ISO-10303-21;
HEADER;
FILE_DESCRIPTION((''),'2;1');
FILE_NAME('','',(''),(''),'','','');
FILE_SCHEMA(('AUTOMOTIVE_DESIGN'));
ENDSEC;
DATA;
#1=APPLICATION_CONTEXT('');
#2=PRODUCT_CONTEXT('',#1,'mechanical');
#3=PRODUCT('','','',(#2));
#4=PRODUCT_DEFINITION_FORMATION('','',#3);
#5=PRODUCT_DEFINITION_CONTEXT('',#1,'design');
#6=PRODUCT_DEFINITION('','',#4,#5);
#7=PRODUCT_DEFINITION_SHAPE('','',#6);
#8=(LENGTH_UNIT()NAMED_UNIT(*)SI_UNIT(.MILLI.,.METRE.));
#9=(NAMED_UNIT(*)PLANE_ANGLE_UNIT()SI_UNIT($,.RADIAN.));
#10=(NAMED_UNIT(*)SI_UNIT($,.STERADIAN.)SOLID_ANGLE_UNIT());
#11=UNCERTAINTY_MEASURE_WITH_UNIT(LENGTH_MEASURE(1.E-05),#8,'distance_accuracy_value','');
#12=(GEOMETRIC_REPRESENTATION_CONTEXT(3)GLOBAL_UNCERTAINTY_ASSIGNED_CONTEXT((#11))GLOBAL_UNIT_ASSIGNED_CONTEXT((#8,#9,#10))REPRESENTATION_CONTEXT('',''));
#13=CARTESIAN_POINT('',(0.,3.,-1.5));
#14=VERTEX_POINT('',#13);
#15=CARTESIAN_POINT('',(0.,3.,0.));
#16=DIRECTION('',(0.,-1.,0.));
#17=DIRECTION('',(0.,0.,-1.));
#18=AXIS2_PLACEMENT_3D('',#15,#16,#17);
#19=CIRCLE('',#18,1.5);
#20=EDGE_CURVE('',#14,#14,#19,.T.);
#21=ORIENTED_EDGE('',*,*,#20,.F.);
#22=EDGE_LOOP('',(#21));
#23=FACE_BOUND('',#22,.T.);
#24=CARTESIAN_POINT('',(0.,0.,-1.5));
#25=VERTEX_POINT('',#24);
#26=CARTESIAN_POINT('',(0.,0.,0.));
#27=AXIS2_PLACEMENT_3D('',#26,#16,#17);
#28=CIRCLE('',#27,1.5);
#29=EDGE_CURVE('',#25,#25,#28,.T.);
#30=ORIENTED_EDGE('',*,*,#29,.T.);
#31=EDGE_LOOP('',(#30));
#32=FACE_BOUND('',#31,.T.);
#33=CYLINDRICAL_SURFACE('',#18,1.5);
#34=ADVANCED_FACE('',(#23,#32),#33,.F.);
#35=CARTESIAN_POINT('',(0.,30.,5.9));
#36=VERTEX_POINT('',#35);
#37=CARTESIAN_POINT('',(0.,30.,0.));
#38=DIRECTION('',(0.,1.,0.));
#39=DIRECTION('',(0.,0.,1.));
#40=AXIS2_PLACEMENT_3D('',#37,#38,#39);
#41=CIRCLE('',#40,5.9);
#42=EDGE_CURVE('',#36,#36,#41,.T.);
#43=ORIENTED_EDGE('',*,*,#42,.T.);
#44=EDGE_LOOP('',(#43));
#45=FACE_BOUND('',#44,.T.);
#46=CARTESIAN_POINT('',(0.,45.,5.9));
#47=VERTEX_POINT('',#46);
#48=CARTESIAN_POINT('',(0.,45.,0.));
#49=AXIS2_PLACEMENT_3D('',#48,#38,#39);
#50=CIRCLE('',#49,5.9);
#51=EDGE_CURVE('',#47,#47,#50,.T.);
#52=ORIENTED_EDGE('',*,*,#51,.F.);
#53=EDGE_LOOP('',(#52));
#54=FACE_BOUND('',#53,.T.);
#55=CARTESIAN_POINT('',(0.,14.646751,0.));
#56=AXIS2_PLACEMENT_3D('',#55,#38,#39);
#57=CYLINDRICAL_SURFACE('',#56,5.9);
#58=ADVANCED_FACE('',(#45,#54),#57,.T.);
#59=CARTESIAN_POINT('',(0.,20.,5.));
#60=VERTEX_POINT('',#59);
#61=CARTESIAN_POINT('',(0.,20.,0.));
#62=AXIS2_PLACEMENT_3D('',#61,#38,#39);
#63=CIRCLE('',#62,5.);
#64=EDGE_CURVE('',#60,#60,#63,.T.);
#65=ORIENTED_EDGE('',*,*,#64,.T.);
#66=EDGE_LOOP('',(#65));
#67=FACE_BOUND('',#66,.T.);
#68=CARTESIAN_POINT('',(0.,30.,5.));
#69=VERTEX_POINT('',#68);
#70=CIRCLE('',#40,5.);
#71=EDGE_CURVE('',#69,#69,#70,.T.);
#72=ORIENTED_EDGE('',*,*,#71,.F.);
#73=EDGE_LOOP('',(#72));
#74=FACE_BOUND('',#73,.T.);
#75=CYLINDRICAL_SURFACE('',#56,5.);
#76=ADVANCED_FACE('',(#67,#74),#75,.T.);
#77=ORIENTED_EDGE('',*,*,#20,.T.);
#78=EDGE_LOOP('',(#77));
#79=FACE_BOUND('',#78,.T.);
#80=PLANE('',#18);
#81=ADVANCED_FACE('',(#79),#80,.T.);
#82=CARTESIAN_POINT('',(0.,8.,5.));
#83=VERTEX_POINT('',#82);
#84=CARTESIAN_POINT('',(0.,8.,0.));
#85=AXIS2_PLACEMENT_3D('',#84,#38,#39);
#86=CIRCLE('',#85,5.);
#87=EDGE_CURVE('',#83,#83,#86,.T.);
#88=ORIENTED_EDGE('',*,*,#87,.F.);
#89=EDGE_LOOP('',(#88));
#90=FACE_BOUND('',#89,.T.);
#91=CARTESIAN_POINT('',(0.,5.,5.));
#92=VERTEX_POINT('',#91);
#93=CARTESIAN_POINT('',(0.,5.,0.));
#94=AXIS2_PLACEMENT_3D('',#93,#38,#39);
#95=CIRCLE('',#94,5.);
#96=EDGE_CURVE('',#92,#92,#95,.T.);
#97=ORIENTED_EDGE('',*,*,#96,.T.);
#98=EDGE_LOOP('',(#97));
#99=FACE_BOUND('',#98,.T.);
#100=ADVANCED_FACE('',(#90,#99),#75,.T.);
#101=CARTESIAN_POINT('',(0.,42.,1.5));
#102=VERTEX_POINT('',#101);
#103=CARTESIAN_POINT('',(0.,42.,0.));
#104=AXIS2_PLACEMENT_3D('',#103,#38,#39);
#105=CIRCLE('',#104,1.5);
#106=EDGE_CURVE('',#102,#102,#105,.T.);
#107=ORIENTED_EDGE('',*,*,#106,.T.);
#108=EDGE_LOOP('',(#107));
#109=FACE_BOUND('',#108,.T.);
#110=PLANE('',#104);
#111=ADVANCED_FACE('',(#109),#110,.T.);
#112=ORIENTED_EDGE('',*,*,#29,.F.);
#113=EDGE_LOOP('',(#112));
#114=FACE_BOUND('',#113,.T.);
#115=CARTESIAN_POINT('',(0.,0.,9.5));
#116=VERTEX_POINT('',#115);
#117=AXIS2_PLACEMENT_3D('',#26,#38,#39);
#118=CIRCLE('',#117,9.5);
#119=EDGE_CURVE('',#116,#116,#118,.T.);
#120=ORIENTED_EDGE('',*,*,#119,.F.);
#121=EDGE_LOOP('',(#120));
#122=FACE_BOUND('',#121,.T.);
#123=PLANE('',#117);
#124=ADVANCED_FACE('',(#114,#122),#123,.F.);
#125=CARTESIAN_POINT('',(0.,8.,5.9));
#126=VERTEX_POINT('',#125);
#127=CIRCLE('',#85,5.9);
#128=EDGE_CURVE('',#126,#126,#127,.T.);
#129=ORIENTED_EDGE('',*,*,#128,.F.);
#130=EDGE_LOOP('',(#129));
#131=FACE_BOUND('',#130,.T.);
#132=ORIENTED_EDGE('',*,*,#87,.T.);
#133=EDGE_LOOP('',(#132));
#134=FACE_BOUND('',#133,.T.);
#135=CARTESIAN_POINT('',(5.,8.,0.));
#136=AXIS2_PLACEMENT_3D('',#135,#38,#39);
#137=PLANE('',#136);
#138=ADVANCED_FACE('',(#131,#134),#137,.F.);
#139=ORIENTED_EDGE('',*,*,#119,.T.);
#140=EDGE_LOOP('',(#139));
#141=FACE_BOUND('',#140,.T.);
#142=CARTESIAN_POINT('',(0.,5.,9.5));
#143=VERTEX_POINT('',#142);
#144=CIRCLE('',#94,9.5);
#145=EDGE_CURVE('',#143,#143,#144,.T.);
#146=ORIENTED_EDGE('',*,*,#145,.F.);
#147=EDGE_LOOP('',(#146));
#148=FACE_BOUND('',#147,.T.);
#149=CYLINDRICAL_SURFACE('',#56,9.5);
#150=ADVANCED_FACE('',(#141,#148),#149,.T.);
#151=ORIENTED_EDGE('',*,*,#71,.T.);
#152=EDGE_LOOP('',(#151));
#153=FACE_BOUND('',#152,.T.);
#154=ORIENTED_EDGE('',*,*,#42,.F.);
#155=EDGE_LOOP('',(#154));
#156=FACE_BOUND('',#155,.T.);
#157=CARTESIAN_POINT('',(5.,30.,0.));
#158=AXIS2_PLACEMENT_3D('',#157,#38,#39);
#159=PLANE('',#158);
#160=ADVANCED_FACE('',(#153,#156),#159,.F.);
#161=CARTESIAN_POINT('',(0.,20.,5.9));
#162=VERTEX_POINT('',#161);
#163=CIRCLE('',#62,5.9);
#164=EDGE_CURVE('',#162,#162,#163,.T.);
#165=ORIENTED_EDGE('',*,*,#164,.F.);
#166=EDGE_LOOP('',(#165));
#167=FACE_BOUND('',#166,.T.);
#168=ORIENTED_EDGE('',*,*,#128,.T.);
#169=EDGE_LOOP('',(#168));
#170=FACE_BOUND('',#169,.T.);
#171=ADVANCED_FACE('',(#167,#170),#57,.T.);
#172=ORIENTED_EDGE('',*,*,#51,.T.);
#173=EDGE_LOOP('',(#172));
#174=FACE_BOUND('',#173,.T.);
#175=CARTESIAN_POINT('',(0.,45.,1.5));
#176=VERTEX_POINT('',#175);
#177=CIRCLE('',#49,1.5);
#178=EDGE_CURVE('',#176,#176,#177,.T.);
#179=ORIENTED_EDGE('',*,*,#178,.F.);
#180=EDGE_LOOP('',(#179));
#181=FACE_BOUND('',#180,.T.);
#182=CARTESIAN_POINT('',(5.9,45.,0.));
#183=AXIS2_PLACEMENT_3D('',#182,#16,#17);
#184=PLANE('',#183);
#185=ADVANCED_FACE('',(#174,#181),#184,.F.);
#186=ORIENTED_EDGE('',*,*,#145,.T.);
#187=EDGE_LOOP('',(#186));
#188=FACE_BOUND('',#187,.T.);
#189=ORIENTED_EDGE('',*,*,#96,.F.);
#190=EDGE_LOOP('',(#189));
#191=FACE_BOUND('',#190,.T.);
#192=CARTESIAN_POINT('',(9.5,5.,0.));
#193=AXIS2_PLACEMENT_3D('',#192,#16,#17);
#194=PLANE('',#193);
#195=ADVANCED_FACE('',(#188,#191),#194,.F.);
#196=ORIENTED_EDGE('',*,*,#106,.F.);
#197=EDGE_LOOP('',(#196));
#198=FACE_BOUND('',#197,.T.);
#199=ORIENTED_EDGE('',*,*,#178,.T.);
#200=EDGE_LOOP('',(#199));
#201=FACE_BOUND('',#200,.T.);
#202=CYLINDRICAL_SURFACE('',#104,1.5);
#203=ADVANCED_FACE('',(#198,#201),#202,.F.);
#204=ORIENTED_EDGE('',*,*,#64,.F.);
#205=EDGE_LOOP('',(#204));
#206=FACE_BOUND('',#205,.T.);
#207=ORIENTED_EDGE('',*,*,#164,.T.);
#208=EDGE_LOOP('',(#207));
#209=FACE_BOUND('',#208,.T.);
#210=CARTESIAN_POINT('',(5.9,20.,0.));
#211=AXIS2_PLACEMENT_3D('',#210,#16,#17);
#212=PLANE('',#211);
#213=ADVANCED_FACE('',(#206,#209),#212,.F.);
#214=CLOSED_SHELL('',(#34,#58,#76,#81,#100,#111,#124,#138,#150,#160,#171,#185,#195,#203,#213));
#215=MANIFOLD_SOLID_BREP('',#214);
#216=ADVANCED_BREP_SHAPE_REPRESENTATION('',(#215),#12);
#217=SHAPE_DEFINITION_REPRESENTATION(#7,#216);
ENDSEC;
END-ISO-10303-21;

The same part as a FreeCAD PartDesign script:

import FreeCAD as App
import Part
import Sketcher

V = App.Vector

doc = App.newDocument("Part")
params = doc.addObject("Spreadsheet::Sheet", "Params")
for row, (alias, value) in enumerate([
    ("sketch1_height", "5 mm"),
    ("sketch1_height2", "3 mm"),
    ("sketch1_height3", "12 mm"),
    ("sketch1_height4", "10 mm"),
    ("sketch1_height5", "15 mm"),
    ("revolution_angle", "360 deg"),
    ("sketch2_diameter", "3 mm"),
    ("pocket1_length", "3 mm"),
    ("sketch3_diameter", "3 mm"),
    ("pocket2_length", "3 mm"),
], start=1):
    params.set(f"A{row}", alias)
    params.set(f"B{row}", "=" + value)
    params.setAlias(f"B{row}", alias)

body = doc.addObject("PartDesign::Body", "Body")

# Sketch on XY plane
sketch1 = doc.addObject("Sketcher::SketchObject", "Sketch")
body.addObject(sketch1)
sketch1.AttachmentSupport = (doc.XY_Plane, [""])
sketch1.MapMode = "FlatFace"
sketch1.addGeometry([
    Part.LineSegment(V(0, 0, 0), V(9.5, 0, 0)),  # 0
    Part.LineSegment(V(9.5, 0, 0), V(9.5, 5, 0)),  # 1
    Part.LineSegment(V(9.5, 5, 0), V(5, 5, 0)),  # 2
    Part.LineSegment(V(5, 5, 0), V(5, 8, 0)),  # 3
    Part.LineSegment(V(5, 8, 0), V(5.9, 8, 0)),  # 4
    Part.LineSegment(V(5.9, 8, 0), V(5.9, 20, 0)),  # 5
    Part.LineSegment(V(5.9, 20, 0), V(5, 20, 0)),  # 6
    Part.LineSegment(V(5, 20, 0), V(5, 30, 0)),  # 7
    Part.LineSegment(V(5, 30, 0), V(5.9, 30, 0)),  # 8
    Part.LineSegment(V(5.9, 30, 0), V(5.9, 45, 0)),  # 9
    Part.LineSegment(V(5.9, 45, 0), V(0, 45, 0)),  # 10
    Part.LineSegment(V(0, 45, 0), V(0, 0, 0)),  # 11
], False)
sketch1.addConstraint([
    Sketcher.Constraint("Coincident", 0, 2, 1, 1),
    Sketcher.Constraint("Coincident", 1, 2, 2, 1),
    Sketcher.Constraint("Coincident", 2, 2, 3, 1),
    Sketcher.Constraint("Coincident", 3, 2, 4, 1),
    Sketcher.Constraint("Coincident", 4, 2, 5, 1),
    Sketcher.Constraint("Coincident", 5, 2, 6, 1),
    Sketcher.Constraint("Coincident", 6, 2, 7, 1),
    Sketcher.Constraint("Coincident", 7, 2, 8, 1),
    Sketcher.Constraint("Coincident", 8, 2, 9, 1),
    Sketcher.Constraint("Coincident", 9, 2, 10, 1),
    Sketcher.Constraint("Coincident", 10, 2, 11, 1),
    Sketcher.Constraint("Coincident", 11, 2, 0, 1),
    Sketcher.Constraint("Horizontal", 0),
    Sketcher.Constraint("Vertical", 1),
    Sketcher.Constraint("Horizontal", 2),
    Sketcher.Constraint("Vertical", 3),
    Sketcher.Constraint("Horizontal", 4),
    Sketcher.Constraint("Vertical", 5),
    Sketcher.Constraint("Horizontal", 6),
    Sketcher.Constraint("Vertical", 7),
    Sketcher.Constraint("Horizontal", 8),
    Sketcher.Constraint("Vertical", 9),
    Sketcher.Constraint("Horizontal", 10),
    Sketcher.Constraint("Vertical", 11),
    Sketcher.Constraint("Coincident", 11, 2, -1, 1),
    Sketcher.Constraint("Vertical", 3, 2, 6, 2),
    Sketcher.Constraint("Vertical", 5, 2, 8, 2),
    Sketcher.Constraint("DistanceY", 1, 1, 1, 2, 5.0),
    Sketcher.Constraint("DistanceY", 3, 1, 3, 2, 3.0),
    Sketcher.Constraint("DistanceY", 5, 1, 5, 2, 12.0),
    Sketcher.Constraint("DistanceY", 7, 1, 7, 2, 10.0),
    Sketcher.Constraint("DistanceY", 9, 1, 9, 2, 15.0),
    Sketcher.Constraint("DistanceX", 0, 1, 0, 2, 9.5),
    Sketcher.Constraint("DistanceX", 2, 2, 2, 1, 4.5),
    Sketcher.Constraint("DistanceX", 4, 1, 4, 2, 0.9),
])
sketch1.setExpression("Constraints[27]", "Params.sketch1_height")
sketch1.setExpression("Constraints[28]", "Params.sketch1_height2")
sketch1.setExpression("Constraints[29]", "Params.sketch1_height3")
sketch1.setExpression("Constraints[30]", "Params.sketch1_height4")
sketch1.setExpression("Constraints[31]", "Params.sketch1_height5")
revolution = doc.addObject("PartDesign::Revolution", "Revolution")
body.addObject(revolution)
revolution.Profile = sketch1
revolution.ReferenceAxis = (sketch1, ["V_Axis"])
revolution.setExpression("Angle", "Params.revolution_angle")

# Sketch on XZ plane
sketch2 = doc.addObject("Sketcher::SketchObject", "Sketch001")
body.addObject(sketch2)
sketch2.AttachmentSupport = (doc.XZ_Plane, [""])
sketch2.MapMode = "FlatFace"
sketch2.AttachmentOffset = App.Placement(V(0, 0, -45), App.Rotation())
sketch2.addGeometry(Part.Circle(V(0, 0, 0), V(0, 0, 1), 1.5), False)
sketch2.addConstraint([
    Sketcher.Constraint("Coincident", 0, 3, -1, 1),
    Sketcher.Constraint("Diameter", 0, 3.0),
])
sketch2.setExpression("Constraints[1]", "Params.sketch2_diameter")
pocket1 = doc.addObject("PartDesign::Pocket", "Pocket")
body.addObject(pocket1)
pocket1.Profile = sketch2
pocket1.setExpression("Length", "Params.pocket1_length")
pocket1.Reversed = True

# Sketch on XZ plane
sketch3 = doc.addObject("Sketcher::SketchObject", "Sketch002")
body.addObject(sketch3)
sketch3.AttachmentSupport = (doc.XZ_Plane, [""])
sketch3.MapMode = "FlatFace"
sketch3.AttachmentOffset = App.Placement(V(0, 0, -3), App.Rotation())
sketch3.addGeometry(Part.Circle(V(0, 0, 0), V(0, 0, 1), 1.5), False)
sketch3.addConstraint([
    Sketcher.Constraint("Coincident", 0, 3, -1, 1),
    Sketcher.Constraint("Diameter", 0, 3.0),
])
sketch3.setExpression("Constraints[1]", "Params.sketch3_diameter")
pocket2 = doc.addObject("PartDesign::Pocket", "Pocket001")
body.addObject(pocket2)
pocket2.Profile = sketch3
pocket2.setExpression("Length", "Params.pocket2_length")
pocket2.Reversed = True

doc.recompute()
